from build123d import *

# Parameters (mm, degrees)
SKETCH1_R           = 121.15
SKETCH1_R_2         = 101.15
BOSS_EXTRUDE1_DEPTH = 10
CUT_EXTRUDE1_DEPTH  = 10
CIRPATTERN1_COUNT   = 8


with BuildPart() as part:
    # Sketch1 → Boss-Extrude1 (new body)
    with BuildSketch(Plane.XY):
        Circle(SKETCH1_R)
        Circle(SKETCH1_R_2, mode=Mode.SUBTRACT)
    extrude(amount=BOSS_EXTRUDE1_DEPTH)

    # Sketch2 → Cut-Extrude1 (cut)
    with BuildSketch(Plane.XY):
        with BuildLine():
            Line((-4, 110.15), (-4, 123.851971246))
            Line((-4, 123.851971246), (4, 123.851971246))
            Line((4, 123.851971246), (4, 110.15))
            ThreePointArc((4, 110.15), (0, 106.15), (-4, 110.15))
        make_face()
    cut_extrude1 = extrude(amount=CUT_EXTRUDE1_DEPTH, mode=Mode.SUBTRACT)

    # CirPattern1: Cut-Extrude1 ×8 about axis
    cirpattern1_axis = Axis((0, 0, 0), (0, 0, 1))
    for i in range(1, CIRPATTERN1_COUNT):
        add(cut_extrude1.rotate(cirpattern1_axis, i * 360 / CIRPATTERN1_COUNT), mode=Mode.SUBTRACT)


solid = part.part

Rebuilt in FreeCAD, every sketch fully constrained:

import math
import FreeCAD as App
import Part
import Sketcher
from FreeCAD import Vector
Q = App.Units.Quantity

doc = App.newDocument("Part")
body = doc.addObject("PartDesign::Body", "Body")

# Sketch on XY plane
sketch1 = doc.addObject("Sketcher::SketchObject", "Sketch")
body.addObject(sketch1)
sketch1.AttachmentSupport = (doc.XY_Plane, [""])
sketch1.MapMode = "FlatFace"
sketch1.addGeometry([
    Part.Circle(Vector(0, 0, 0), Vector(0, 0, 1), 121.15),
    Part.Circle(Vector(0, 0, 0), Vector(0, 0, 1), 101.15),
], False)
sketch1.addConstraint([
    Sketcher.Constraint("Coincident", 0, 3, -1, 1),
    Sketcher.Constraint("Coincident", 1, 3, -1, 1),
    Sketcher.Constraint("Diameter", 0, Q("242.3 mm")),
    Sketcher.Constraint("Diameter", 1, Q("202.3 mm")),
])
pad1 = doc.addObject("PartDesign::Pad", "Pad")
body.addObject(pad1)
pad1.Profile = sketch1
pad1.Length = 10

# Sketch on XY plane
sketch2 = doc.addObject("Sketcher::SketchObject", "Sketch001")
body.addObject(sketch2)
sketch2.AttachmentSupport = (doc.XY_Plane, [""])
sketch2.MapMode = "FlatFace"
sketch2.addGeometry([
    Part.LineSegment(Vector(-4, 123.851971, 0), Vector(-4, 110.15, 0)),
    Part.ArcOfCircle(Part.Circle(Vector(0, 110.15, 0), Vector(0, 0, 1), 4), math.radians(180), math.radians(360)),
    Part.LineSegment(Vector(4, 110.15, 0), Vector(4, 123.851971, 0)),
    Part.LineSegment(Vector(4, 123.851971, 0), Vector(-4, 123.851971, 0)),
], False)
sketch2.addConstraint([
    Sketcher.Constraint("Tangent", 0, 2, 1, 1),
    Sketcher.Constraint("Tangent", 1, 2, 2, 1),
    Sketcher.Constraint("Coincident", 2, 2, 3, 1),
    Sketcher.Constraint("Coincident", 3, 2, 0, 1),
    Sketcher.Constraint("Vertical", 0),
    Sketcher.Constraint("Vertical", 2),
    Sketcher.Constraint("Horizontal", 3),
    Sketcher.Constraint("PointOnObject", 1, 3, -2),
    Sketcher.Constraint("Radius", 1, Q("4 mm")),
    Sketcher.Constraint("DistanceY", -1, 1, 1, 3, Q("110.15 mm")),
    Sketcher.Constraint("DistanceY", 0, 2, 0, 1, Q("13.701971 mm")),
])
pocket1 = doc.addObject("PartDesign::Pocket", "Pocket")
body.addObject(pocket1)
pocket1.Profile = sketch2
pocket1.Length = 10
pocket1.Reversed = True
doc.recompute()

polarpattern = doc.addObject("PartDesign::PolarPattern", "PolarPattern")
body.addObject(polarpattern)
polarpattern.Originals = [pocket1]
polarpattern.Axis = (doc.Z_Axis, [""])
polarpattern.Angle = 360
polarpattern.Occurrences = 8
body.Tip = polarpattern

doc.recompute()
